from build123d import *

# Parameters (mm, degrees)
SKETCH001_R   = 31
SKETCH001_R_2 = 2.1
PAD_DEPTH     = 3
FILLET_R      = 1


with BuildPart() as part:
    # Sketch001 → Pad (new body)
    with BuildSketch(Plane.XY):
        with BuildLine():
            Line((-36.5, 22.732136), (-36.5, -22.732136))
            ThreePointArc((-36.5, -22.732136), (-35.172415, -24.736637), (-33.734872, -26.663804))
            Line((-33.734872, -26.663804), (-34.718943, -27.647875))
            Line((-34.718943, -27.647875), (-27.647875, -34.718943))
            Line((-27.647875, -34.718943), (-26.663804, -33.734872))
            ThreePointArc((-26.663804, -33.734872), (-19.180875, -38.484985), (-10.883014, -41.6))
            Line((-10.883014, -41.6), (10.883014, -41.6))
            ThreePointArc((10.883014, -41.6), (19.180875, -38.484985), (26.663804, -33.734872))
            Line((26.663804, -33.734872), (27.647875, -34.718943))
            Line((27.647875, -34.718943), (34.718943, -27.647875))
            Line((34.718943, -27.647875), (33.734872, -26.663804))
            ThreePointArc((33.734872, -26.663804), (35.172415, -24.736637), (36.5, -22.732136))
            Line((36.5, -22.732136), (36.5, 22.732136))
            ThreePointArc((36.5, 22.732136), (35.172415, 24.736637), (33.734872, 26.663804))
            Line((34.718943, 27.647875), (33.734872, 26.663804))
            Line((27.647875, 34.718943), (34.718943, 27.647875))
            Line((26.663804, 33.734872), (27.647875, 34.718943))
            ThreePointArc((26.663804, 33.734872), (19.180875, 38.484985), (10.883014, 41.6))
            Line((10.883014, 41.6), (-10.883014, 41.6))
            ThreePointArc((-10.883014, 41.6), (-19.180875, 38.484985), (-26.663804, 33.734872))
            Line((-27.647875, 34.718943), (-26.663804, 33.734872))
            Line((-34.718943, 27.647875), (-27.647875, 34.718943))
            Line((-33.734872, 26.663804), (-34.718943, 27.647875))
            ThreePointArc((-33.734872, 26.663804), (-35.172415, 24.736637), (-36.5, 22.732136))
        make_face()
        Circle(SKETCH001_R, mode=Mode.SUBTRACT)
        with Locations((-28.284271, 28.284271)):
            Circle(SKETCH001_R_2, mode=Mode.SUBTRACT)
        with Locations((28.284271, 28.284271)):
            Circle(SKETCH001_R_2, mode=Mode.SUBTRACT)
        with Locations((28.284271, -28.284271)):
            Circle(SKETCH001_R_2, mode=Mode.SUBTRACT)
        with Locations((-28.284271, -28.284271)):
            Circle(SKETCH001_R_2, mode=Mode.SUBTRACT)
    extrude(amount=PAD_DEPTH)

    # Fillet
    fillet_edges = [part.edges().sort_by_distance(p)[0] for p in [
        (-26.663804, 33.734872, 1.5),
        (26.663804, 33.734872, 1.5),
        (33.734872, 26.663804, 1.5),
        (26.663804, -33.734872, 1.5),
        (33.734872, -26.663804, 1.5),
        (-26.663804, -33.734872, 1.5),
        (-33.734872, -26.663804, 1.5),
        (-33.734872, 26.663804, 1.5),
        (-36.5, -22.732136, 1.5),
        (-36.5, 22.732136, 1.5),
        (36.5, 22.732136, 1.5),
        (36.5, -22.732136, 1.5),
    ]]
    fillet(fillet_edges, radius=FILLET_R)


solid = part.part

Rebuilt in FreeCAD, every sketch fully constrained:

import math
import FreeCAD as App
import Part
import Sketcher
Q = App.Units.Quantity


def edges_at(feature, points):
    """Names of the edges that pass closest to the given points."""
    edges = feature.Shape.Edges
    near = lambda p: min(range(len(edges)), key=lambda i: edges[i].distToShape(Part.Vertex(*p))[0])
    return sorted({f"Edge{near(p) + 1}" for p in points})

doc = App.newDocument("Part")
params = doc.addObject("Spreadsheet::Sheet", "Params")
for row, (alias, value) in enumerate([
    ("sketch1_diameter", "62 mm"),
    ("sketch1_diameter2", "4.2 mm"),
    ("sketch1_length", "10 mm"),
    ("pad1_length", "3 mm"),
    ("fillet_radius", "1 mm"),
], start=1):
    params.set(f"A{row}", alias)
    params.set(f"B{row}", "=" + value)
    params.setAlias(f"B{row}", alias)

body = doc.addObject("PartDesign::Body", "Body")

# Sketch on XY plane
sketch1 = doc.addObject("Sketcher::SketchObject", "Sketch")
body.addObject(sketch1)
sketch1.AttachmentSupport = (doc.XY_Plane, [""])
sketch1.MapMode = "FlatFace"
sketch1.addGeometry([
    Part.LineSegment(App.Vector(-36.5, 22.732136, 0), App.Vector(-36.5, -22.732136, 0)),  # 0
    Part.ArcOfCircle(Part.Circle(App.Vector(0.000201, 0.000138, 0), App.Vector(0, 0, 1), 43.000244), math.radians(-148.085407), math.radians(-141.677427)),  # 1
    Part.LineSegment(App.Vector(-33.734872, -26.663804, 0), App.Vector(-34.718943, -27.647875, 0)),  # 2
    Part.LineSegment(App.Vector(-34.718943, -27.647875, 0), App.Vector(-27.647875, -34.718943, 0)),  # 3
    Part.LineSegment(App.Vector(-27.647875, -34.718943, 0), App.Vector(-26.663804, -33.734872, 0)),  # 4
    Part.ArcOfCircle(Part.Circle(App.Vector(-0.000007, -0.000011, 0), App.Vector(0, 0, 1), 42.999988), math.radians(-128.322597), math.radians(-104.660632)),  # 5
    Part.LineSegment(App.Vector(-10.883014, -41.6, 0), App.Vector(10.883014, -41.6, 0)),  # 6
    Part.ArcOfCircle(Part.Circle(App.Vector(0.000007, -0.000011, 0), App.Vector(0, 0, 1), 42.999988), math.radians(-75.339368), math.radians(-51.677403)),  # 7
    Part.LineSegment(App.Vector(26.663804, -33.734872, 0), App.Vector(27.647875, -34.718943, 0)),  # 8
    Part.LineSegment(App.Vector(27.647875, -34.718943, 0), App.Vector(34.718943, -27.647875, 0)),  # 9
    Part.LineSegment(App.Vector(34.718943, -27.647875, 0), App.Vector(33.734872, -26.663804, 0)),  # 10
    Part.ArcOfCircle(Part.Circle(App.Vector(-0.000201, 0.000138, 0), App.Vector(0, 0, 1), 43.000244), math.radians(-38.322573), math.radians(-31.914593)),  # 11
    Part.LineSegment(App.Vector(36.5, -22.732136, 0), App.Vector(36.5, 22.732136, 0)),  # 12
    Part.ArcOfCircle(Part.Circle(App.Vector(-0.000201, -0.000138, 0), App.Vector(0, 0, 1), 43.000244), math.radians(31.914593), math.radians(38.322573)),  # 13
    Part.LineSegment(App.Vector(33.734872, 26.663804, 0), App.Vector(34.718943, 27.647875, 0)),  # 14
    Part.LineSegment(App.Vector(34.718943, 27.647875, 0), App.Vector(27.647875, 34.718943, 0)),  # 15
    Part.LineSegment(App.Vector(27.647875, 34.718943, 0), App.Vector(26.663804, 33.734872, 0)),  # 16
    Part.ArcOfCircle(Part.Circle(App.Vector(0.000007, 0.000011, 0), App.Vector(0, 0, 1), 42.999988), math.radians(51.677403), math.radians(75.339368)),  # 17
    Part.LineSegment(App.Vector(10.883014, 41.6, 0), App.Vector(-10.883014, 41.6, 0)),  # 18
    Part.ArcOfCircle(Part.Circle(App.Vector(-0.000007, 0.000011, 0), App.Vector(0, 0, 1), 42.999988), math.radians(104.660632), math.radians(128.322597)),  # 19
    Part.LineSegment(App.Vector(-26.663804, 33.734872, 0), App.Vector(-27.647875, 34.718943, 0)),  # 20
    Part.LineSegment(App.Vector(-27.647875, 34.718943, 0), App.Vector(-34.718943, 27.647875, 0)),  # 21
    Part.LineSegment(App.Vector(-34.718943, 27.647875, 0), App.Vector(-33.734872, 26.663804, 0)),  # 22
    Part.ArcOfCircle(Part.Circle(App.Vector(0.000201, -0.000138, 0), App.Vector(0, 0, 1), 43.000244), math.radians(141.677427), math.radians(148.085407)),  # 23
    Part.Circle(App.Vector(-28.284271, -28.284271, 0), App.Vector(0, 0, 1), 2.1),  # 24
    Part.Circle(App.Vector(28.284271, -28.284271, 0), App.Vector(0, 0, 1), 2.1),  # 25
    Part.Circle(App.Vector(-28.284271, 28.284271, 0), App.Vector(0, 0, 1), 2.1),  # 26
    Part.Circle(App.Vector(0, 0, 0), App.Vector(0, 0, 1), 31),  # 27
    Part.Circle(App.Vector(28.284271, 28.284271, 0), App.Vector(0, 0, 1), 2.1),  # 28
], False)
sketch1.addConstraint([
    Sketcher.Constraint("Coincident", 0, 2, 1, 1),
    Sketcher.Constraint("Coincident", 1, 2, 2, 1),
    Sketcher.Constraint("Coincident", 2, 2, 3, 1),
    Sketcher.Constraint("Coincident", 3, 2, 4, 1),
    Sketcher.Constraint("Coincident", 4, 2, 5, 1),
    Sketcher.Constraint("Coincident", 5, 2, 6, 1),
    Sketcher.Constraint("Coincident", 6, 2, 7, 1),
    Sketcher.Constraint("Coincident", 7, 2, 8, 1),
    Sketcher.Constraint("Coincident", 8, 2, 9, 1),
    Sketcher.Constraint("Coincident", 9, 2, 10, 1),
    Sketcher.Constraint("Coincident", 10, 2, 11, 1),
    Sketcher.Constraint("Coincident", 11, 2, 12, 1),
    Sketcher.Constraint("Coincident", 12, 2, 13, 1),
    Sketcher.Constraint("Coincident", 13, 2, 14, 1),
    Sketcher.Constraint("Coincident", 14, 2, 15, 1),
    Sketcher.Constraint("Coincident", 15, 2, 16, 1),
    Sketcher.Constraint("Coincident", 16, 2, 17, 1),
    Sketcher.Constraint("Coincident", 17, 2, 18, 1),
    Sketcher.Constraint("Coincident", 18, 2, 19, 1),
    Sketcher.Constraint("Coincident", 19, 2, 20, 1),
    Sketcher.Constraint("Coincident", 20, 2, 21, 1),
    Sketcher.Constraint("Coincident", 21, 2, 22, 1),
    Sketcher.Constraint("Coincident", 22, 2, 23, 1),
    Sketcher.Constraint("Coincident", 23, 2, 0, 1),
    Sketcher.Constraint("Vertical", 0),
    Sketcher.Constraint("Horizontal", 6),
    Sketcher.Constraint("Vertical", 12),
    Sketcher.Constraint("Horizontal", 18),
    Sketcher.Constraint("Coincident", 27, 3, -1, 1),
    Sketcher.Constraint("Equal", 5, 7),
    Sketcher.Constraint("Equal", 1, 11),
    Sketcher.Constraint("Equal", 11, 13),
    Sketcher.Constraint("Equal", 7, 17),
    Sketcher.Constraint("Equal", 17, 19),
    Sketcher.Constraint("Equal", 13, 23),
    Sketcher.Constraint("Equal", 24, 25),
    Sketcher.Constraint("Equal", 25, 26),
    Sketcher.Constraint("Equal", 26, 28),
    Sketcher.Constraint("Symmetric", 1, 3, 13, 3, -1, 1),
    Sketcher.Constraint("Symmetric", 5, 3, 17, 3, -1, 1),
    Sketcher.Constraint("Symmetric", 7, 3, 19, 3, -1, 1),
    Sketcher.Constraint("Symmetric", 11, 3, 23, 3, -1, 1),
    Sketcher.Constraint("Symmetric", 25, 3, 26, 3, -1, 1),
    Sketcher.Constraint("Symmetric", 24, 3, 28, 3, -1, 1),
    Sketcher.Constraint("Symmetric", 2, 2, 14, 2, -1, 1),
    Sketcher.Constraint("Symmetric", 3, 2, 15, 2, -1, 1),
    Sketcher.Constraint("Symmetric", 8, 2, 20, 2, -1, 1),
    Sketcher.Constraint("Symmetric", 9, 2, 21, 2, -1, 1),
    Sketcher.Constraint("Symmetric", 5, 3, 7, 3, -2),
    Sketcher.Constraint("Symmetric", 1, 3, 11, 3, -2),
    Sketcher.Constraint("Symmetric", 24, 3, 25, 3, -2),
    Sketcher.Constraint("Symmetric", 3, 2, 8, 2, -2),
    Sketcher.Constraint("Symmetric", 2, 2, 9, 2, -2),
    Sketcher.Constraint("Perpendicular", 2, 3),
    Sketcher.Constraint("Perpendicular", 3, 4),
    Sketcher.Constraint("Perpendicular", 4, 8),
    Sketcher.Constraint("Perpendicular", 8, 9),
    Sketcher.Constraint("Perpendicular", 9, 10),
    Sketcher.Constraint("Perpendicular", 10, 14),
    Sketcher.Constraint("Perpendicular", 15, 16),
    Sketcher.Constraint("Perpendicular", 16, 20),
    Sketcher.Constraint("Perpendicular", 21, 22),
    Sketcher.Constraint("Horizontal", 0, 2, 11, 2),
    Sketcher.Constraint("Vertical", 6, 2, 17, 2),
    Sketcher.Constraint("Equal", 2, 4),
    Sketcher.Constraint("Diameter", 27, Q("62 mm")),
    Sketcher.Constraint("Diameter", 24, Q("4.2 mm")),
    Sketcher.Constraint("Distance", 3, Q("10 mm")),
    Sketcher.Constraint("DistanceX", 0, 2, -1, 1, Q("36.5 mm")),
    Sketcher.Constraint("DistanceY", 5, 2, -1, 1, Q("41.6 mm")),
    Sketcher.Constraint("Radius", 1, Q("43.000244 mm")),
    Sketcher.Constraint("Radius", 5, Q("42.999988 mm")),
    Sketcher.Constraint("DistanceX", -1, 1, 1, 3, Q("0.000201 mm")),
    Sketcher.Constraint("DistanceX", 1, 2, 24, 3, Q("5.450601 mm")),
    Sketcher.Constraint("DistanceY", 4, 2, 24, 3, Q("5.450601 mm")),
    Sketcher.Constraint("DistanceX", 6, 1, 6, 2, Q("21.766028 mm")),
    Sketcher.Constraint("DistanceY", 0, 2, 0, 1, Q("45.464272 mm")),
    Sketcher.Constraint("DistanceX", 24, 3, -1, 1, Q("28.284271 mm")),
    Sketcher.Constraint("DistanceX", 2, 2, 1, 2, Q("0.984071 mm")),
])
sketch1.setExpression("Constraints[65]", "Params.sketch1_diameter")
sketch1.setExpression("Constraints[66]", "Params.sketch1_diameter2")
sketch1.setExpression("Constraints[67]", "Params.sketch1_length")
pad1 = doc.addObject("PartDesign::Pad", "Pad")
body.addObject(pad1)
pad1.Profile = sketch1
pad1.setExpression("Length", "Params.pad1_length")
doc.recompute()

fillet = doc.addObject("PartDesign::Fillet", "Fillet")
body.addObject(fillet)
fillet.Base = (pad1, edges_at(pad1, [
    (-26.664, 33.735, 1.5),
    (26.664, 33.735, 1.5),
    (33.735, 26.664, 1.5),
    (26.664, -33.735, 1.5),
    (33.735, -26.664, 1.5),
    (-26.664, -33.735, 1.5),
    (-33.735, -26.664, 1.5),
    (-33.735, 26.664, 1.5),
    (-36.5, -22.732, 1.5),
    (-36.5, 22.732, 1.5),
    (36.5, 22.732, 1.5),
    (36.5, -22.732, 1.5),
]))
fillet.setExpression("Radius", "Params.fillet_radius")

doc.recompute()
